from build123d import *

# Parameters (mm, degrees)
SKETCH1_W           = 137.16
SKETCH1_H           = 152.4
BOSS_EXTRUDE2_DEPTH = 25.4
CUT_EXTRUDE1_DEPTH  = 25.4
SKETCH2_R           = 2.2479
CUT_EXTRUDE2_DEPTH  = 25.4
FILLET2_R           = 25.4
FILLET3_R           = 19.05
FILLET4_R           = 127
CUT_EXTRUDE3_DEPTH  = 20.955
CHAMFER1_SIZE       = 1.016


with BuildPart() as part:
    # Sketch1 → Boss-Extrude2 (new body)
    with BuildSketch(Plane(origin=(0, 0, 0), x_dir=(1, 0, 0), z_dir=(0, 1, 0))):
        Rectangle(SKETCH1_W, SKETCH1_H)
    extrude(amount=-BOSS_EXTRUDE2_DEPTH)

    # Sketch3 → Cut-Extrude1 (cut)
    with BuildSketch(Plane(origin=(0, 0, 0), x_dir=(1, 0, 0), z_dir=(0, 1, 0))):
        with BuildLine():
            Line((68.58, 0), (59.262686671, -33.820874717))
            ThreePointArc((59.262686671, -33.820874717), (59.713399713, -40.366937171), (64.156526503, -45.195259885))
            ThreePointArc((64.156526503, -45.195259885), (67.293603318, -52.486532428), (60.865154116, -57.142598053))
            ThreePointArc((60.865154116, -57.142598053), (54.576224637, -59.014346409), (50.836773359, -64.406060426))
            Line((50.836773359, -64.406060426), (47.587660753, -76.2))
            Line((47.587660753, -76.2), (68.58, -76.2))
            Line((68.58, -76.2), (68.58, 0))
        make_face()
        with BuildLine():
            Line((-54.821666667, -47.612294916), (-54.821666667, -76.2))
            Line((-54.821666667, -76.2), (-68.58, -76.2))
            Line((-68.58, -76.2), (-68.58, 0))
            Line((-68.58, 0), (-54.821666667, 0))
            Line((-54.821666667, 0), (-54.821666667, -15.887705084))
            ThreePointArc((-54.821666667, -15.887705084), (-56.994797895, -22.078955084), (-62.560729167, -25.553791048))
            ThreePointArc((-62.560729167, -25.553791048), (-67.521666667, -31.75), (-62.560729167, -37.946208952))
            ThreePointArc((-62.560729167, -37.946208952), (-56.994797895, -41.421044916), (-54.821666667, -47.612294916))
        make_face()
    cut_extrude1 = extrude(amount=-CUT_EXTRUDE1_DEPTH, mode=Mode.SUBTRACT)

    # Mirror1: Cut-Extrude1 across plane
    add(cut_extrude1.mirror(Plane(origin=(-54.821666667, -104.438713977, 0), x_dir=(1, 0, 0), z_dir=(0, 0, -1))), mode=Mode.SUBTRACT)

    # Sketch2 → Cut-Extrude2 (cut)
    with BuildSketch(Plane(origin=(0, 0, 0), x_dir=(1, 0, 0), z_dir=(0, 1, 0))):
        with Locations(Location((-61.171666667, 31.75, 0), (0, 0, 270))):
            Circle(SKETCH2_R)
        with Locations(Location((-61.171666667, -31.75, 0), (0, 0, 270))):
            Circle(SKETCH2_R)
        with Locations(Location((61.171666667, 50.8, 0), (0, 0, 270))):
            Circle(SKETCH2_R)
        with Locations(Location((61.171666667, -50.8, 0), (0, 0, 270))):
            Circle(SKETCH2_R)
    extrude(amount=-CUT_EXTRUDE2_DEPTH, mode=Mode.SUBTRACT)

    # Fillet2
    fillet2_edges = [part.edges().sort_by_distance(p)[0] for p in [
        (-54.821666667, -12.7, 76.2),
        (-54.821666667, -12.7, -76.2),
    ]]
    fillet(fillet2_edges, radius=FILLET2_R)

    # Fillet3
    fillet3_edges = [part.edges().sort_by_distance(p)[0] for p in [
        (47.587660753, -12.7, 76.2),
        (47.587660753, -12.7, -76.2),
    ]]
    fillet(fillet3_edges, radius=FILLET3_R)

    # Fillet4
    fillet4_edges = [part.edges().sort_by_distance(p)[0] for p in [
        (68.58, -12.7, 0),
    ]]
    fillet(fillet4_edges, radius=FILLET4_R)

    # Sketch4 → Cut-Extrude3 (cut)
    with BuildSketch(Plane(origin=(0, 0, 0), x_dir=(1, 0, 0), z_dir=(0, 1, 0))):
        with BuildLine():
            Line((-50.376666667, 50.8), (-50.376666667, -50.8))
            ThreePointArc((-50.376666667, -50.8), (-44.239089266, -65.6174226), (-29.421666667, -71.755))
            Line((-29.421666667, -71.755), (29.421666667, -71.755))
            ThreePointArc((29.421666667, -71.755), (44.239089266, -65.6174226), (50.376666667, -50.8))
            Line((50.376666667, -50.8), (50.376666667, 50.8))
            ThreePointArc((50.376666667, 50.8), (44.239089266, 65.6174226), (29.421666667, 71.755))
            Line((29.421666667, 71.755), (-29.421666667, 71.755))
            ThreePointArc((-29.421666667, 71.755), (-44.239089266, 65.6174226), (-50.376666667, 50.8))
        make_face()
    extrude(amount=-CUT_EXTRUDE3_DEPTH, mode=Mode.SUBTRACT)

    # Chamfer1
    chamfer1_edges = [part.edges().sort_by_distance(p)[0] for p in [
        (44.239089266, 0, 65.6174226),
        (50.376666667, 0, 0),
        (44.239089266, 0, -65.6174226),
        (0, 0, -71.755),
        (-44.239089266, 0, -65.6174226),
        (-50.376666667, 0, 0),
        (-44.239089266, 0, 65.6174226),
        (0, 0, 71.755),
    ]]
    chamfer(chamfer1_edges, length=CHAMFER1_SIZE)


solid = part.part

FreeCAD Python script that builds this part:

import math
import FreeCAD as App
import Part
import Sketcher

V = App.Vector
Q = App.Units.Quantity


def edges_at(feature, points):
    """Names of the edges that pass closest to the given points."""
    edges = feature.Shape.Edges
    near = lambda p: min(range(len(edges)), key=lambda i: edges[i].distToShape(Part.Vertex(*p))[0])
    return sorted({f"Edge{near(p) + 1}" for p in points})

doc = App.newDocument("Part")
body = doc.addObject("PartDesign::Body", "Body")

sketch1 = body.newObject("Sketcher::SketchObject", "Sketch")
sketch1.AttachmentSupport = (doc.getObject("XZ_Plane"), [""])
sketch1.MapMode = "FlatFace"
sketch1.addGeometry([
    Part.LineSegment(V(-69, -76, 0), V(-69, 76, 0)),
    Part.LineSegment(V(-69, 76, 0), V(69, 76, 0)),
    Part.LineSegment(V(69, 76, 0), V(69, -76, 0)),
    Part.LineSegment(V(69, -76, 0), V(-69, -76, 0)),
], False)
sketch1.addConstraint([
    Sketcher.Constraint("Coincident", 0, 2, 1, 1),
    Sketcher.Constraint("Coincident", 1, 2, 2, 1),
    Sketcher.Constraint("Coincident", 2, 2, 3, 1),
    Sketcher.Constraint("Coincident", 3, 2, 0, 1),
    Sketcher.Constraint("Vertical", 0),
    Sketcher.Constraint("Horizontal", 1),
    Sketcher.Constraint("Vertical", 2),
    Sketcher.Constraint("Horizontal", 3),
    Sketcher.Constraint("Symmetric", 0, 2, 2, 2, -1, 1),
    Sketcher.Constraint("DistanceY", 0, 1, 0, 2, Q("6 in")),
    Sketcher.Constraint("DistanceX", 1, 1, 1, 2, Q("5.4 in")),
])
pad1 = body.newObject("PartDesign::Pad", "Pad")
pad1.Profile = sketch1
pad1.Length = Q("1 in")

sketch2 = body.newObject("Sketcher::SketchObject", "Sketch001")
sketch2.AttachmentSupport = (doc.getObject("XZ_Plane"), [""])
sketch2.MapMode = "FlatFace"
sketch2.addGeometry([
    Part.LineSegment(V(69, 0, 0), V(59, 34, 0)),
    Part.ArcOfCircle(Part.Circle(V(69, 36, 0), V(0, 0, 1), 10), math.radians(118), math.radians(195)),
    Part.ArcOfCircle(Part.Circle(V(61, 51, 0), V(0, 0, 1), 6), math.radians(-62), math.radians(93)),
    Part.ArcOfCircle(Part.Circle(V(60, 67, 0), V(0, 0, 1), 10), math.radians(-165), math.radians(-87)),
    Part.LineSegment(V(51, 64, 0), V(48, 76, 0)),
    Part.LineSegment(V(48, 76, 0), V(69, 76, 0)),
    Part.LineSegment(V(69, 76, 0), V(69, 0, 0)),
    Part.LineSegment(V(-55, 76, 0), V(-55, 48, 0)),
    Part.ArcOfCircle(Part.Circle(V(-65, 48, 0), V(0, 0, 1), 10), math.radians(-77), math.radians(0)),
    Part.ArcOfCircle(Part.Circle(V(-61, 32, 0), V(0, 0, 1), 6), math.radians(103), math.radians(257)),
    Part.ArcOfCircle(Part.Circle(V(-65, 16, 0), V(0, 0, 1), 10), math.radians(0), math.radians(77)),
    Part.LineSegment(V(-55, 16, 0), V(-55, 0, 0)),
    Part.LineSegment(V(-55, 0, 0), V(-69, 0, 0)),
    Part.LineSegment(V(-69, 0, 0), V(-69, 76, 0)),
    Part.LineSegment(V(-69, 76, 0), V(-55, 76, 0)),
], False)
sketch2.addConstraint([
    Sketcher.Constraint("Tangent", 0, 2, 1, 2),
    Sketcher.Constraint("Tangent", 1, 1, 2, 1),
    Sketcher.Constraint("Tangent", 2, 2, 3, 2),
    Sketcher.Constraint("Tangent", 3, 1, 4, 1),
    Sketcher.Constraint("Coincident", 4, 2, 5, 1),
    Sketcher.Constraint("Coincident", 5, 2, 6, 1),
    Sketcher.Constraint("Coincident", 6, 2, 0, 1),
    Sketcher.Constraint("Tangent", 7, 2, 8, 2),
    Sketcher.Constraint("Tangent", 8, 1, 9, 1),
    Sketcher.Constraint("Tangent", 9, 2, 10, 2),
    Sketcher.Constraint("Tangent", 10, 1, 11, 1),
    Sketcher.Constraint("Coincident", 11, 2, 12, 1),
    Sketcher.Constraint("Coincident", 12, 2, 13, 1),
    Sketcher.Constraint("Coincident", 13, 2, 14, 1),
    Sketcher.Constraint("Coincident", 14, 2, 7, 1),
    Sketcher.Constraint("Horizontal", 5),
    Sketcher.Constraint("Vertical", 6),
    Sketcher.Constraint("Vertical", 7),
    Sketcher.Constraint("Vertical", 11),
    Sketcher.Constraint("Horizontal", 12),
    Sketcher.Constraint("Vertical", 13),
    Sketcher.Constraint("Horizontal", 14),
    Sketcher.Constraint("Equal", 1, 3),
    Sketcher.Constraint("Equal", 3, 8),
    Sketcher.Constraint("Equal", 2, 9),
    Sketcher.Constraint("Equal", 8, 10),
    Sketcher.Constraint("Symmetric", 6, 2, 12, 2, -1, 1),
    Sketcher.Constraint("PointOnObject", 6, 2, -1),
    Sketcher.Constraint("Parallel", 0, 4),
    Sketcher.Constraint("Horizontal", 5, 2, 13, 2),
    Sketcher.Constraint("Vertical", 8, 3, 10, 3),
    Sketcher.Constraint("DistanceY", 6, 2, 6, 1, Q("3 in")),
    Sketcher.Constraint("Radius", 1, Q("0.39 in")),
    Sketcher.Constraint("Radius", 2, Q("0.25 in")),
    Sketcher.Constraint("DistanceY", -1, 1, 2, 3, Q("2 in")),
    Sketcher.Constraint("DistanceX", -1, 1, 5, 2, Q("2.7 in")),
    Sketcher.Constraint("DistanceY", -1, 1, 9, 3, Q("1.25 in")),
    Sketcher.Constraint("DistanceX", 8, 3, 9, 3, Q("0.14 in")),
    Sketcher.Constraint("DistanceX", 5, 1, 5, 2, 20.992339),
    Sketcher.Constraint("DistanceY", -1, 1, 2, 2, 57.142598),
    Sketcher.Constraint("Distance", 0, 35.080819),
    Sketcher.Constraint("DistanceX", 12, 2, 12, 1, 13.758333),
])
pocket1 = body.newObject("PartDesign::Pocket", "Pocket")
pocket1.Profile = sketch2
pocket1.Length = Q("1 in")
pocket1.Reversed = True
doc.recompute()

mirrored = body.newObject("PartDesign::Mirrored", "Mirrored")
mirrored.Originals = [pocket1]
mirrored.MirrorPlane = (doc.getObject("XY_Plane"), [""])
body.Tip = mirrored

sketch3 = body.newObject("Sketcher::SketchObject", "Sketch002")
sketch3.AttachmentSupport = (doc.getObject("XZ_Plane"), [""])
sketch3.MapMode = "FlatFace"
sketch3.addGeometry([
    Part.Circle(V(-61.2, -31.8, 0), V(0, 0, 1), 2.2),
    Part.Circle(V(-61.2, 31.8, 0), V(0, 0, 1), 2.2),
    Part.Circle(V(61.2, -50.8, 0), V(0, 0, 1), 2.2),
    Part.Circle(V(61.2, 50.8, 0), V(0, 0, 1), 2.2),
], False)
sketch3.addConstraint([
    Sketcher.Constraint("Equal", 0, 1),
    Sketcher.Constraint("Equal", 1, 2),
    Sketcher.Constraint("Equal", 2, 3),
    Sketcher.Constraint("Symmetric", 0, 3, 1, 3, -1),
    Sketcher.Constraint("Symmetric", 2, 3, 3, 3, -1),
    Sketcher.Constraint("Diameter", 0, Q("0.177 in")),
    Sketcher.Constraint("DistanceY", 2, 3, -1, 1, Q("2 in")),
    Sketcher.Constraint("DistanceY", 0, 3, 1, 3, Q("2.5 in")),
    Sketcher.Constraint("DistanceX", 0, 3, -1, 1, 61.171667),
    Sketcher.Constraint("DistanceX", -1, 1, 2, 3, 61.171667),
])
pocket2 = body.newObject("PartDesign::Pocket", "Pocket001")
pocket2.Profile = sketch3
pocket2.Length = Q("1 in")
pocket2.Reversed = True
doc.recompute()

fillet = body.newObject("PartDesign::Fillet", "Fillet")
fillet.Base = (pocket2, edges_at(pocket2, [(-54.822, -12.7, 76.2), (-54.822, -12.7, -76.2)]))
fillet.Radius = Q("1 in")
doc.recompute()

fillet2 = body.newObject("PartDesign::Fillet", "Fillet001")
fillet2.Base = (fillet, edges_at(fillet, [(47.588, -12.7, 76.2), (47.588, -12.7, -76.2)]))
fillet2.Radius = Q("0.75 in")
doc.recompute()

fillet3 = body.newObject("PartDesign::Fillet", "Fillet002")
fillet3.Base = (fillet2, edges_at(fillet2, [(68.58, -12.7, 0)]))
fillet3.Radius = Q("5 in")

sketch4 = body.newObject("Sketcher::SketchObject", "Sketch003")
sketch4.AttachmentSupport = (doc.getObject("XZ_Plane"), [""])
sketch4.MapMode = "FlatFace"
sketch4.addGeometry([
    Part.LineSegment(V(-50, -51, 0), V(-50, 51, 0)),
    Part.ArcOfCircle(Part.Circle(V(-29, 51, 0), V(0, 0, 1), 21), math.radians(90), math.radians(180)),
    Part.LineSegment(V(-29, 72, 0), V(29, 72, 0)),
    Part.ArcOfCircle(Part.Circle(V(29, 51, 0), V(0, 0, 1), 21), math.radians(0), math.radians(90)),
    Part.LineSegment(V(50, 51, 0), V(50, -51, 0)),
    Part.ArcOfCircle(Part.Circle(V(29, -51, 0), V(0, 0, 1), 21), math.radians(-90), math.radians(0)),
    Part.LineSegment(V(29, -72, 0), V(-29, -72, 0)),
    Part.ArcOfCircle(Part.Circle(V(-29, -51, 0), V(0, 0, 1), 21), math.radians(-180), math.radians(-90)),
], False)
sketch4.addConstraint([
    Sketcher.Constraint("Tangent", 0, 2, 1, 2),
    Sketcher.Constraint("Tangent", 1, 1, 2, 1),
    Sketcher.Constraint("Tangent", 2, 2, 3, 2),
    Sketcher.Constraint("Tangent", 3, 1, 4, 1),
    Sketcher.Constraint("Tangent", 4, 2, 5, 2),
    Sketcher.Constraint("Tangent", 5, 1, 6, 1),
    Sketcher.Constraint("Tangent", 6, 2, 7, 2),
    Sketcher.Constraint("Tangent", 7, 1, 0, 1),
    Sketcher.Constraint("Vertical", 0),
    Sketcher.Constraint("Horizontal", 2),
    Sketcher.Constraint("Vertical", 4),
    Sketcher.Constraint("Horizontal", 6),
    Sketcher.Constraint("Equal", 1, 3),
    Sketcher.Constraint("Equal", 3, 5),
    Sketcher.Constraint("Equal", 5, 7),
    Sketcher.Constraint("Symmetric", 1, 3, 5, 3, -1, 1),
    Sketcher.Constraint("DistanceY", 0, 1, 0, 2, Q("4 in")),
    Sketcher.Constraint("Radius", 1, Q("0.825 in")),
    Sketcher.Constraint("DistanceX", 2, 1, 2, 2, 58.843333),
])
pocket3 = body.newObject("PartDesign::Pocket", "Pocket002")
pocket3.Profile = sketch4
pocket3.Length = Q("0.825 in")
pocket3.Reversed = True
doc.recompute()

chamfer = body.newObject("PartDesign::Chamfer", "Chamfer")
chamfer.Base = (pocket3, edges_at(pocket3, [
    (44.239, 0, 65.617),
    (50.377, 0, 0),
    (44.239, 0, -65.617),
    (0, 0, -71.755),
    (-44.239, 0, -65.617),
    (-50.377, 0, 0),
    (-44.239, 0, 65.617),
    (0, 0, 71.755),
]))
chamfer.Size = Q("0.04 in")

doc.recompute()
